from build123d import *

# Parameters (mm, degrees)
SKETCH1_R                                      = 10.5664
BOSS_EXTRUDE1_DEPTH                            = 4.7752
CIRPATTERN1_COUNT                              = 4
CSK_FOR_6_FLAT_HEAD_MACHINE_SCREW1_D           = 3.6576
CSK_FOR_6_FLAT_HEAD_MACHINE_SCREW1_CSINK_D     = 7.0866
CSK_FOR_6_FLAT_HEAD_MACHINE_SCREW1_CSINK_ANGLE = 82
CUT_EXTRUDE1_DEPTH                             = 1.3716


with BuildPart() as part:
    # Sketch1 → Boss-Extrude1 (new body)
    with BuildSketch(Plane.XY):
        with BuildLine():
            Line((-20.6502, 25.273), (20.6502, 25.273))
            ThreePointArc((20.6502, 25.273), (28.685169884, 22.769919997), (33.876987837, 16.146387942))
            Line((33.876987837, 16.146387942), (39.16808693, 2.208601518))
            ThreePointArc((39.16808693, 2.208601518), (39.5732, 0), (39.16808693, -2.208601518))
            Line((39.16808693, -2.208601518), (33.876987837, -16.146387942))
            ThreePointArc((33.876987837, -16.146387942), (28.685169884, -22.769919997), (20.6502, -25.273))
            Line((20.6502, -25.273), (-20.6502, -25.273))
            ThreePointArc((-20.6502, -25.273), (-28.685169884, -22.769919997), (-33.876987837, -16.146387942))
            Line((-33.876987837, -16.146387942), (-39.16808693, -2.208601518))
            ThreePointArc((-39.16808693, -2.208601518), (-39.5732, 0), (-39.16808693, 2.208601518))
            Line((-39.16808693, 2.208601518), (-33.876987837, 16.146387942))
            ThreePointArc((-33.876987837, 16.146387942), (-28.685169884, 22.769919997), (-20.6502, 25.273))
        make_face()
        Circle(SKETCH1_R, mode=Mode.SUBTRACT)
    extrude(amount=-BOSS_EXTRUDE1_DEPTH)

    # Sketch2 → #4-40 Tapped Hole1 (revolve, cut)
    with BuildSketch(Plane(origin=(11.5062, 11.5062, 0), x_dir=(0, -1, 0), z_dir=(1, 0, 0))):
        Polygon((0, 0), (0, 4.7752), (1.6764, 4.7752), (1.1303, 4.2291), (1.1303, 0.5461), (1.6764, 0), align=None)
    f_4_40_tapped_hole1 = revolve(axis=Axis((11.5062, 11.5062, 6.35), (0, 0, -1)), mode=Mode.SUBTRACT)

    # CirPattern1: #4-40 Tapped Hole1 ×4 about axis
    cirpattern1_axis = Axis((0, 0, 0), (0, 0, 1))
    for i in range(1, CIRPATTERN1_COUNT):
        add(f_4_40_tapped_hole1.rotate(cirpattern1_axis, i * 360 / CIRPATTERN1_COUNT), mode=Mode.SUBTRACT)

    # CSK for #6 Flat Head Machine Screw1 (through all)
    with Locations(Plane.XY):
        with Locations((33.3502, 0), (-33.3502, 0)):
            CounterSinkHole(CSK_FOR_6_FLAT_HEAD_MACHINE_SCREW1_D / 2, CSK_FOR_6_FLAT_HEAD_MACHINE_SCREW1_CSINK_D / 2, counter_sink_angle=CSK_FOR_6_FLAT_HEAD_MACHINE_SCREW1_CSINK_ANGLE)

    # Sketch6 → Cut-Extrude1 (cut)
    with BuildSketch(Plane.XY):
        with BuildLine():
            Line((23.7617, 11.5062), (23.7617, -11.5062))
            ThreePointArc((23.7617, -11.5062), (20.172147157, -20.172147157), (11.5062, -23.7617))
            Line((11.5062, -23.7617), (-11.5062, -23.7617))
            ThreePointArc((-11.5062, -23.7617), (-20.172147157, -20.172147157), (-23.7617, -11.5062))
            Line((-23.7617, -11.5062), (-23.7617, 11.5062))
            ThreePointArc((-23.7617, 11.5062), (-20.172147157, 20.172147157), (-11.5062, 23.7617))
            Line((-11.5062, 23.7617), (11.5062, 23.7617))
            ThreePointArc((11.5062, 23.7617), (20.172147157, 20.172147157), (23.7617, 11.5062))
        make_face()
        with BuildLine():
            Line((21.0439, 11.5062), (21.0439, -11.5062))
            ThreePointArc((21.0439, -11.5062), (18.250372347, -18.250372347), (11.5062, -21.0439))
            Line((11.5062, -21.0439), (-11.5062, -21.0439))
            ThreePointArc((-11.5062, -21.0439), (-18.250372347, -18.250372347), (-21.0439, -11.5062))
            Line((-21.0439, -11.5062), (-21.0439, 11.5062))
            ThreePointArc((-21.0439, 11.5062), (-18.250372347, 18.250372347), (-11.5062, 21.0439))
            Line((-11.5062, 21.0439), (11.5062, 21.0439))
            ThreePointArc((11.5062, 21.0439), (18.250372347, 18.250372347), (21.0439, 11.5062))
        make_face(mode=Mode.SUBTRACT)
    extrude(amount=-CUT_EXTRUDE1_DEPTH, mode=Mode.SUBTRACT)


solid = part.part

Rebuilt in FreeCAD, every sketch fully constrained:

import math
import FreeCAD as App
import Part
import Sketcher
Q = App.Units.Quantity


def add_polygon(sketch, points):
    """Adds a closed chain of lines whose ends are joined by coincident constraints."""
    first, n = sketch.GeometryCount, len(points)
    for a, b in zip(points, points[1:] + points[:1]):
        sketch.addGeometry(Part.LineSegment(App.Vector(*a, 0), App.Vector(*b, 0)), False)
    for i in range(n):
        sketch.addConstraint(Sketcher.Constraint("Coincident", first + i, 2, first + (i + 1) % n, 1))

doc = App.newDocument("Part")
params = doc.addObject("Spreadsheet::Sheet", "Params")
for row, (alias, value) in enumerate([
    ("sketch1_diameter", "0.832 in"),
    ("sketch1_radius", "0.557 in"),
    ("sketch1_radius2", "0.245 in"),
    ("sketch1_width", "1.626 in"),
    ("pad1_length", "0.188 in"),
    ("sketch2_width", "0.066 in"),
    ("sketch2_height", "0.188 in"),
    ("sketch2_height2", "0.145 in"),
    ("groove_angle", "360 deg"),
    ("sketch3_diameter", "0.144 in"),
    ("hole_diameter", "0.144 in"),
    ("hole_csink_diameter", "0.279 in"),
    ("sketch4_width", "0.906 in"),
    ("pocket1_length", "0.054 in"),
], start=1):
    params.set(f"A{row}", alias)
    params.set(f"B{row}", "=" + value)
    params.setAlias(f"B{row}", alias)

body = doc.addObject("PartDesign::Body", "Body")

# Sketch on XY plane
sketch1 = body.newObject("Sketcher::SketchObject", "Sketch")
sketch1.AttachmentSupport = (doc.getObject("XY_Plane"), [""])
sketch1.MapMode = "FlatFace"
sketch1.addGeometry([
    Part.LineSegment(App.Vector(20.7, 25.3, 0), App.Vector(-20.7, 25.3, 0)),  # 0
    Part.ArcOfCircle(Part.Circle(App.Vector(-20.7, 11.1, 0), App.Vector(0, 0, 1), 14.1), math.radians(90), math.radians(159)),  # 1
    Part.LineSegment(App.Vector(-33.9, 16.1, 0), App.Vector(-39.2, 2.2, 0)),  # 2
    Part.ArcOfCircle(Part.Circle(App.Vector(-33.4, 0, 0), App.Vector(0, 0, 1), 6.2), math.radians(159), math.radians(201)),  # 3
    Part.LineSegment(App.Vector(-39.2, -2.2, 0), App.Vector(-33.9, -16.1, 0)),  # 4
    Part.ArcOfCircle(Part.Circle(App.Vector(-20.7, -11.1, 0), App.Vector(0, 0, 1), 14.1), math.radians(-159), math.radians(-90)),  # 5
    Part.LineSegment(App.Vector(-20.7, -25.3, 0), App.Vector(20.7, -25.3, 0)),  # 6
    Part.ArcOfCircle(Part.Circle(App.Vector(20.7, -11.1, 0), App.Vector(0, 0, 1), 14.1), math.radians(-90), math.radians(-21)),  # 7
    Part.LineSegment(App.Vector(33.9, -16.1, 0), App.Vector(39.2, -2.2, 0)),  # 8
    Part.ArcOfCircle(Part.Circle(App.Vector(33.4, 0, 0), App.Vector(0, 0, 1), 6.2), math.radians(-21), math.radians(21)),  # 9
    Part.LineSegment(App.Vector(39.2, 2.2, 0), App.Vector(33.9, 16.1, 0)),  # 10
    Part.ArcOfCircle(Part.Circle(App.Vector(20.7, 11.1, 0), App.Vector(0, 0, 1), 14.1), math.radians(21), math.radians(90)),  # 11
    Part.Circle(App.Vector(0, 0, 0), App.Vector(0, 0, 1), 10.6),  # 12
], False)
sketch1.addConstraint([
    Sketcher.Constraint("Tangent", 0, 2, 1, 1),
    Sketcher.Constraint("Tangent", 1, 2, 2, 1),
    Sketcher.Constraint("Tangent", 2, 2, 3, 1),
    Sketcher.Constraint("Tangent", 3, 2, 4, 1),
    Sketcher.Constraint("Tangent", 4, 2, 5, 1),
    Sketcher.Constraint("Tangent", 5, 2, 6, 1),
    Sketcher.Constraint("Tangent", 6, 2, 7, 1),
    Sketcher.Constraint("Tangent", 7, 2, 8, 1),
    Sketcher.Constraint("Tangent", 8, 2, 9, 1),
    Sketcher.Constraint("Tangent", 9, 2, 10, 1),
    Sketcher.Constraint("Tangent", 10, 2, 11, 1),
    Sketcher.Constraint("Tangent", 11, 2, 0, 1),
    Sketcher.Constraint("Horizontal", 0),
    Sketcher.Constraint("Horizontal", 6),
    Sketcher.Constraint("Coincident", 12, 3, -1, 1),
    Sketcher.Constraint("Equal", 1, 5),
    Sketcher.Constraint("Equal", 5, 7),
    Sketcher.Constraint("Equal", 3, 9),
    Sketcher.Constraint("Equal", 7, 11),
    Sketcher.Constraint("Symmetric", 1, 3, 7, 3, -1, 1),
    Sketcher.Constraint("Symmetric", 3, 3, 9, 3, -1, 1),
    Sketcher.Constraint("Symmetric", 4, 2, 7, 2, -2),
    Sketcher.Constraint("Parallel", 4, 10),
    Sketcher.Constraint("Diameter", 12, Q("0.832 in")),
    Sketcher.Constraint("Radius", 1, Q("0.557 in")),
    Sketcher.Constraint("Radius", 3, Q("0.245 in")),
    Sketcher.Constraint("DistanceX", 3, 3, 1, 3, Q("0.5 in")),
    Sketcher.Constraint("DistanceX", 0, 2, 0, 1, Q("1.626 in")),
    Sketcher.Constraint("DistanceY", -1, 1, 1, 3, Q("0.438 in")),
])
sketch1.setExpression("Constraints[23]", "Params.sketch1_diameter")
sketch1.setExpression("Constraints[24]", "Params.sketch1_radius")
sketch1.setExpression("Constraints[25]", "Params.sketch1_radius2")
sketch1.setExpression("Constraints[27]", "Params.sketch1_width")
pad1 = body.newObject("PartDesign::Pad", "Pad")
pad1.Profile = sketch1
pad1.setExpression("Length", "Params.pad1_length")
pad1.Reversed = True

# Sketch on YZ plane
sketch2 = body.newObject("Sketcher::SketchObject", "Sketch001")
sketch2.AttachmentSupport = (doc.getObject("YZ_Plane"), [""])
sketch2.MapMode = "FlatFace"
sketch2.AttachmentOffset = App.Placement(App.Vector(0, 0, 0.453 * 25.4), App.Rotation())
add_polygon(sketch2, [(11.5, -4.8), (11.5, 0), (9.8, 0), (10.4, -0.5), (10.4, -4.2), (9.8, -4.8)])  # lines 0-5
sketch2.addGeometry(Part.LineSegment(App.Vector(11.5, 0, 0), App.Vector(11.5, -4.8, 0)), True)  # axis
sketch2.addConstraint([
    Sketcher.Constraint("Vertical", 0),
    Sketcher.Constraint("Horizontal", 1),
    Sketcher.Constraint("Vertical", 3),
    Sketcher.Constraint("Horizontal", 5),
    Sketcher.Constraint("Vertical", 6),
    Sketcher.Constraint("Coincident", 6, 1, 0, 2),
    Sketcher.Constraint("PointOnObject", 0, 2, -1),
    Sketcher.Constraint("Perpendicular", 2, 4),
    Sketcher.Constraint("Horizontal", 4, 2, 6, 2),
    Sketcher.Constraint("Vertical", 1, 2, 4, 2),
    Sketcher.Constraint("Equal", 2, 4),
    Sketcher.Constraint("DistanceX", 1, 2, 1, 1, Q("0.066 in")),
    Sketcher.Constraint("DistanceY", 0, 1, 0, 2, Q("0.188 in")),
    Sketcher.Constraint("DistanceY", 3, 2, 3, 1, Q("0.145 in")),
    Sketcher.Constraint("DistanceX", -1, 1, 0, 2, Q("0.453 in")),
])
sketch2.setExpression("Constraints[17]", "Params.sketch2_width")
sketch2.setExpression("Constraints[18]", "Params.sketch2_height")
sketch2.setExpression("Constraints[19]", "Params.sketch2_height2")
groove = body.newObject("PartDesign::Groove", "Groove")
groove.Profile = sketch2
groove.ReferenceAxis = (sketch2, ["Axis0"])
groove.setExpression("Angle", "Params.groove_angle")
doc.recompute()

polarpattern = body.newObject("PartDesign::PolarPattern", "PolarPattern")
polarpattern.Originals = [groove]
polarpattern.Axis = (doc.getObject("Z_Axis"), [""])
polarpattern.Angle = 360
polarpattern.Occurrences = 4
body.Tip = polarpattern

# Sketch on XY plane
sketch3 = body.newObject("Sketcher::SketchObject", "Sketch002")
sketch3.AttachmentSupport = (doc.getObject("XY_Plane"), [""])
sketch3.MapMode = "FlatFace"
sketch3.addGeometry([
    Part.Circle(App.Vector(33.4, 0, 0), App.Vector(0, 0, 1), 1.8),
    Part.Circle(App.Vector(-33.4, 0, 0), App.Vector(0, 0, 1), 1.8),
], False)
sketch3.addConstraint([
    Sketcher.Constraint("Equal", 0, 1),
    Sketcher.Constraint("Symmetric", 0, 3, 1, 3, -1, 1),
    Sketcher.Constraint("PointOnObject", 0, 3, -1),
    Sketcher.Constraint("Diameter", 0, Q("0.144 in")),
    Sketcher.Constraint("DistanceX", -1, 1, 0, 3, Q("1.313 in")),
])
sketch3.setExpression("Constraints[3]", "Params.sketch3_diameter")
doc.recompute()
hole = body.newObject("PartDesign::Hole", "Hole")
hole.Profile = sketch3
hole.ThreadType = "None"
hole.setExpression("Diameter", "Params.hole_diameter")
hole.DepthType = "ThroughAll"
hole.HoleCutType = "Countersink"
hole.setExpression("HoleCutDiameter", "Params.hole_csink_diameter")
hole.HoleCutCountersinkAngle = 82

# Sketch on XY plane
sketch4 = body.newObject("Sketcher::SketchObject", "Sketch003")
sketch4.AttachmentSupport = (doc.getObject("XY_Plane"), [""])
sketch4.MapMode = "FlatFace"
sketch4.addGeometry([
    Part.LineSegment(App.Vector(24, -12, 0), App.Vector(24, 12, 0)),  # 0
    Part.ArcOfCircle(Part.Circle(App.Vector(12, 12, 0), App.Vector(0, 0, 1), 12), math.radians(0), math.radians(90)),  # 1
    Part.LineSegment(App.Vector(12, 24, 0), App.Vector(-12, 24, 0)),  # 2
    Part.ArcOfCircle(Part.Circle(App.Vector(-12, 12, 0), App.Vector(0, 0, 1), 12), math.radians(90), math.radians(180)),  # 3
    Part.LineSegment(App.Vector(-24, 12, 0), App.Vector(-24, -12, 0)),  # 4
    Part.ArcOfCircle(Part.Circle(App.Vector(-12, -12, 0), App.Vector(0, 0, 1), 12), math.radians(180), math.radians(270)),  # 5
    Part.LineSegment(App.Vector(-12, -24, 0), App.Vector(12, -24, 0)),  # 6
    Part.ArcOfCircle(Part.Circle(App.Vector(12, -12, 0), App.Vector(0, 0, 1), 12), math.radians(-90), math.radians(0)),  # 7
    Part.LineSegment(App.Vector(21, 12, 0), App.Vector(21, -12, 0)),  # 8
    Part.ArcOfCircle(Part.Circle(App.Vector(12, -12, 0), App.Vector(0, 0, 1), 10), math.radians(-90), math.radians(0)),  # 9
    Part.LineSegment(App.Vector(12, -21, 0), App.Vector(-12, -21, 0)),  # 10
    Part.ArcOfCircle(Part.Circle(App.Vector(-12, -12, 0), App.Vector(0, 0, 1), 10), math.radians(180), math.radians(270)),  # 11
    Part.LineSegment(App.Vector(-21, -12, 0), App.Vector(-21, 12, 0)),  # 12
    Part.ArcOfCircle(Part.Circle(App.Vector(-12, 12, 0), App.Vector(0, 0, 1), 10), math.radians(90), math.radians(180)),  # 13
    Part.LineSegment(App.Vector(-12, 21, 0), App.Vector(12, 21, 0)),  # 14
    Part.ArcOfCircle(Part.Circle(App.Vector(12, 12, 0), App.Vector(0, 0, 1), 10), math.radians(0), math.radians(90)),  # 15
], False)
sketch4.addConstraint([
    Sketcher.Constraint("Tangent", 0, 2, 1, 1),
    Sketcher.Constraint("Tangent", 1, 2, 2, 1),
    Sketcher.Constraint("Tangent", 2, 2, 3, 1),
    Sketcher.Constraint("Tangent", 3, 2, 4, 1),
    Sketcher.Constraint("Tangent", 4, 2, 5, 1),
    Sketcher.Constraint("Tangent", 5, 2, 6, 1),
    Sketcher.Constraint("Tangent", 6, 2, 7, 1),
    Sketcher.Constraint("Tangent", 7, 2, 0, 1),
    Sketcher.Constraint("Tangent", 8, 2, 9, 2),
    Sketcher.Constraint("Tangent", 9, 1, 10, 1),
    Sketcher.Constraint("Tangent", 10, 2, 11, 2),
    Sketcher.Constraint("Tangent", 11, 1, 12, 1),
    Sketcher.Constraint("Tangent", 12, 2, 13, 2),
    Sketcher.Constraint("Tangent", 13, 1, 14, 1),
    Sketcher.Constraint("Tangent", 14, 2, 15, 2),
    Sketcher.Constraint("Tangent", 15, 1, 8, 1),
    Sketcher.Constraint("Vertical", 0),
    Sketcher.Constraint("Horizontal", 2),
    Sketcher.Constraint("Vertical", 4),
    Sketcher.Constraint("Horizontal", 6),
    Sketcher.Constraint("Vertical", 8),
    Sketcher.Constraint("Horizontal", 10),
    Sketcher.Constraint("Vertical", 12),
    Sketcher.Constraint("Horizontal", 14),
    Sketcher.Constraint("Coincident", 9, 3, 7, 3),
    Sketcher.Constraint("Coincident", 11, 3, 5, 3),
    Sketcher.Constraint("Coincident", 13, 3, 3, 3),
    Sketcher.Constraint("Equal", 1, 3),
    Sketcher.Constraint("Equal", 3, 5),
    Sketcher.Constraint("Equal", 5, 7),
    Sketcher.Constraint("Equal", 13, 15),
    Sketcher.Constraint("Symmetric", 1, 3, 5, 3, -1, 1),
    Sketcher.Constraint("Equal", 14, 0),
    Sketcher.Constraint("Radius", 1, Q("0.4825 in")),
    Sketcher.Constraint("Radius", 9, Q("0.3755 in")),
    Sketcher.Constraint("DistanceX", 2, 2, 2, 1, Q("0.906 in")),
])
sketch4.setExpression("Constraints[35]", "Params.sketch4_width")
pocket1 = body.newObject("PartDesign::Pocket", "Pocket")
pocket1.Profile = sketch4
pocket1.setExpression("Length", "Params.pocket1_length")

doc.recompute()
